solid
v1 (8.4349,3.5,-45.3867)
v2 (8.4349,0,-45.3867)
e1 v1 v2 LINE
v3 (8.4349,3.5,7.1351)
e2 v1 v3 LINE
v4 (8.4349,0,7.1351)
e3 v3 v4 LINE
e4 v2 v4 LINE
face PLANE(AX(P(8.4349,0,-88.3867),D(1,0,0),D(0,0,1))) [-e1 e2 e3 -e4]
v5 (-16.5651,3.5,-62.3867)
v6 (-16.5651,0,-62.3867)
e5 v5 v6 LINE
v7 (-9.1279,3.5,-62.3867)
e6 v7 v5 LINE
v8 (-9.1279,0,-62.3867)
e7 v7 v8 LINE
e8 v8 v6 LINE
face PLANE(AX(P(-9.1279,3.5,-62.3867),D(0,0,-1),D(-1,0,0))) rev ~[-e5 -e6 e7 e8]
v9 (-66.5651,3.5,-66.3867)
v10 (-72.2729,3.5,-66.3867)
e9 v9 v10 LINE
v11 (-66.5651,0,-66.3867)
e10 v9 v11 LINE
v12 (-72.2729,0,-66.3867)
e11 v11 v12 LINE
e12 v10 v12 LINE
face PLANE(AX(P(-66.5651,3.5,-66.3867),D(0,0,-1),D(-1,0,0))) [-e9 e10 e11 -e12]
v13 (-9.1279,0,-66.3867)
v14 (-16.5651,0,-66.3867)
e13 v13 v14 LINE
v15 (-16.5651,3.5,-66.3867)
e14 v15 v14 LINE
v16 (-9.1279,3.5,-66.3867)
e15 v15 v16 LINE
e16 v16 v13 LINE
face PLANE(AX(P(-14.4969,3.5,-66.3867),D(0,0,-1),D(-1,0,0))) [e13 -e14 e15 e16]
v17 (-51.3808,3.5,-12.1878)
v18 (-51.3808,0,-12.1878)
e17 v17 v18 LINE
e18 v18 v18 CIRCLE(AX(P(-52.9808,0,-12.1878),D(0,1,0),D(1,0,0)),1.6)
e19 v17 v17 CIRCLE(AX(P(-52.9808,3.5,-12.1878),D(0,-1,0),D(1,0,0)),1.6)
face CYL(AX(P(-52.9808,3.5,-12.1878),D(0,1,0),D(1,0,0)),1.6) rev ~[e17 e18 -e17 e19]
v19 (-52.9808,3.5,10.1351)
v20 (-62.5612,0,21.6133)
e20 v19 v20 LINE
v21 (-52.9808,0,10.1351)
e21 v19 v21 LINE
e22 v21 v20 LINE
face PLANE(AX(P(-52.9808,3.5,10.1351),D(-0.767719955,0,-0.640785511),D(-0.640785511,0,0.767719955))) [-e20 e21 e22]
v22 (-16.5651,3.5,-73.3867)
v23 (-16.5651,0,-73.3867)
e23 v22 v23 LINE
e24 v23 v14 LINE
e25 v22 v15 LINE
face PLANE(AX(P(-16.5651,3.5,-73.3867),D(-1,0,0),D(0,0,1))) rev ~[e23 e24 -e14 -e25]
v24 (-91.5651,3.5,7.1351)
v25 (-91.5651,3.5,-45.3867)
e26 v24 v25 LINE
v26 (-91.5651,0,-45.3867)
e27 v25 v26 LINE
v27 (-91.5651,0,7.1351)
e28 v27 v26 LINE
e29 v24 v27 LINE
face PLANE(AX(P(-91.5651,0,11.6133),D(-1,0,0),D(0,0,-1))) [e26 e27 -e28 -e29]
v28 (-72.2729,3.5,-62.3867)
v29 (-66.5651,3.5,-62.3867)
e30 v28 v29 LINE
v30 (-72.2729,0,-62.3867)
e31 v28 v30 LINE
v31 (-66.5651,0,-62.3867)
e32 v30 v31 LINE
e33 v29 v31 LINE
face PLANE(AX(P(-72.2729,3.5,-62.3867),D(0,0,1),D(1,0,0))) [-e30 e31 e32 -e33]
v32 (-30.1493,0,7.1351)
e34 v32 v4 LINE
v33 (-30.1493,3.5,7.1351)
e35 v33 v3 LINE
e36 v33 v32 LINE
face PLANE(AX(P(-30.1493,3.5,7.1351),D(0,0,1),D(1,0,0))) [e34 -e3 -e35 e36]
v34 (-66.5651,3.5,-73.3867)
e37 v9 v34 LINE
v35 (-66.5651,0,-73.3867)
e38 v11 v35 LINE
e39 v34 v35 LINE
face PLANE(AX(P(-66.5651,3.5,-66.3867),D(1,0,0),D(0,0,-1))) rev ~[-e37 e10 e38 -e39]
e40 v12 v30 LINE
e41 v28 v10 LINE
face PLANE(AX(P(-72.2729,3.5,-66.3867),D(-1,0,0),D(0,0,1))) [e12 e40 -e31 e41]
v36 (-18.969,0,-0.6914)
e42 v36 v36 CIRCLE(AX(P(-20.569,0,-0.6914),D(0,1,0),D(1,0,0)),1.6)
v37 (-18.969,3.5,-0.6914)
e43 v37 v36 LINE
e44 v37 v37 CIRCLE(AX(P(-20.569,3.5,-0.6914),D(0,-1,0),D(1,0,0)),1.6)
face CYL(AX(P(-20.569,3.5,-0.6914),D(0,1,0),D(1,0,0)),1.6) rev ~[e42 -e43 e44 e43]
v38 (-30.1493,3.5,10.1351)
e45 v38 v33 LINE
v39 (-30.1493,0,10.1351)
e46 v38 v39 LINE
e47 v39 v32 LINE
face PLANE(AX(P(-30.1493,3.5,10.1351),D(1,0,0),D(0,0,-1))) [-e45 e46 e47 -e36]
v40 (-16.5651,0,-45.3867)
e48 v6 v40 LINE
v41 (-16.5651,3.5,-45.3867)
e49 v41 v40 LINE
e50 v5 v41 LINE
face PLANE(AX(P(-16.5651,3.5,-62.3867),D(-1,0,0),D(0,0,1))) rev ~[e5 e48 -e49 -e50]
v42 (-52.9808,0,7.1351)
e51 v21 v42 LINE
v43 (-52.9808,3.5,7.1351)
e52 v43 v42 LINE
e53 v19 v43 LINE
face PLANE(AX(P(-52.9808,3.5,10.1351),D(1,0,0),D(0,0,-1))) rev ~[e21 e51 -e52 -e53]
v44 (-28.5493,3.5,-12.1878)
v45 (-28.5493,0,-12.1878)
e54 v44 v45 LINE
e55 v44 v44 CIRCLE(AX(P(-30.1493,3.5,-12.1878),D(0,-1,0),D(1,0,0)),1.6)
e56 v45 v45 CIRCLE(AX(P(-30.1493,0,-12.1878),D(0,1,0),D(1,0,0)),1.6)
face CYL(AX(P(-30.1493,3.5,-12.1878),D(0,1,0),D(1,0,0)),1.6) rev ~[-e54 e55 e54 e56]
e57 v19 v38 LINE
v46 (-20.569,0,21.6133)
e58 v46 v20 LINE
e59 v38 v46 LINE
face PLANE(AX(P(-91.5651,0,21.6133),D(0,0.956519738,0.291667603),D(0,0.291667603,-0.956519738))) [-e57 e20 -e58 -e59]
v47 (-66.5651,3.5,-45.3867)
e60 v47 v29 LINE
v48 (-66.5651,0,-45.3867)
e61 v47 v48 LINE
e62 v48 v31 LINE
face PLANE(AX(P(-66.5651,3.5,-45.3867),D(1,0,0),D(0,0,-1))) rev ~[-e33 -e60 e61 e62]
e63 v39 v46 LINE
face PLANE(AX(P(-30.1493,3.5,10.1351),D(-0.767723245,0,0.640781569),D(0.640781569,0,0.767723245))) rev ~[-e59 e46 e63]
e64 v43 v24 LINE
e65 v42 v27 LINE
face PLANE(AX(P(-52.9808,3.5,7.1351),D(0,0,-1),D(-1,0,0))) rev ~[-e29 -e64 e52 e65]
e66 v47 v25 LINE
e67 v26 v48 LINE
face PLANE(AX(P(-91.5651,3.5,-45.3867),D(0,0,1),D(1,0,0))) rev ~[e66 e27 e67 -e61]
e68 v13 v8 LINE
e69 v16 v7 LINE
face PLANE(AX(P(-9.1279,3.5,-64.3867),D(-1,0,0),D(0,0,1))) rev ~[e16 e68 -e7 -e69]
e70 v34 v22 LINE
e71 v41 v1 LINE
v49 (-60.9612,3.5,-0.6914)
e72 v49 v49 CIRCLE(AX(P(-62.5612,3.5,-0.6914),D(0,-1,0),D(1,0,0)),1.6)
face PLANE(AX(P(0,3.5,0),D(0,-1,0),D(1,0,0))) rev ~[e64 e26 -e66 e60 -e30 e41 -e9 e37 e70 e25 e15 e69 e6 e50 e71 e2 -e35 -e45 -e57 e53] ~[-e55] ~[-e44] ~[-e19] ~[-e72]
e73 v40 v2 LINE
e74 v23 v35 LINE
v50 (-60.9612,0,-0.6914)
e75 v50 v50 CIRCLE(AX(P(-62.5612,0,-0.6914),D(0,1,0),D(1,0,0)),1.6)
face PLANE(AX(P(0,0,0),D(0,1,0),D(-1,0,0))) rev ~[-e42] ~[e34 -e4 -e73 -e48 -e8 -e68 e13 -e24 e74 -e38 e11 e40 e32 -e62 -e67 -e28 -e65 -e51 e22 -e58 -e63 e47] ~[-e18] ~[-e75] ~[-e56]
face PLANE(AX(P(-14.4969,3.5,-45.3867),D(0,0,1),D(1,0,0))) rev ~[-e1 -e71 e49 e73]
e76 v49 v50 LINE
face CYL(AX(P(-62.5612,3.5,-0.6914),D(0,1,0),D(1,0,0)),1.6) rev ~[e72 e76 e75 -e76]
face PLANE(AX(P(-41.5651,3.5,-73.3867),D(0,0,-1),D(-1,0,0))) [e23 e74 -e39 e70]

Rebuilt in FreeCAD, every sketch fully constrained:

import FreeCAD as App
import Part
import Sketcher
Q = App.Units.Quantity


def add_polygon(sketch, points):
    """Adds a closed chain of lines whose ends are joined by coincident constraints."""
    first, n = sketch.GeometryCount, len(points)
    for a, b in zip(points, points[1:] + points[:1]):
        sketch.addGeometry(Part.LineSegment(App.Vector(*a, 0), App.Vector(*b, 0)), False)
    for i in range(n):
        sketch.addConstraint(Sketcher.Constraint("Coincident", first + i, 2, first + (i + 1) % n, 1))

doc = App.newDocument("Part")
body = doc.addObject("PartDesign::Body", "Body")

# Sketch on XZ plane
sketch1 = body.newObject("Sketcher::SketchObject", "Sketch")
sketch1.AttachmentSupport = (doc.getObject("XZ_Plane"), [""])
sketch1.MapMode = "FlatFace"
add_polygon(sketch1, [(-92, 12), (8, 12), (8, -88), (-92, -88)])  # lines 0-3
sketch1.addConstraint([
    Sketcher.Constraint("Horizontal", 0),
    Sketcher.Constraint("Vertical", 1),
    Sketcher.Constraint("Horizontal", 2),
    Sketcher.Constraint("Vertical", 3),
    Sketcher.Constraint("Equal", 2, 1),
    Sketcher.Constraint("DistanceX", 0, 1, 0, 2, 100.0),
    Sketcher.Constraint("DistanceX", -1, 1, 0, 2, 8.435),
    Sketcher.Constraint("DistanceY", -1, 1, 0, 2, 11.6133),
])
pad1 = body.newObject("PartDesign::Pad", "Pad")
pad1.Profile = sketch1
pad1.Length = 3.5
pad1.Reversed = True

# Sketch on YZ plane
sketch2 = body.newObject("Sketcher::SketchObject", "Sketch001")
sketch2.AttachmentSupport = (doc.getObject("YZ_Plane"), [""])
sketch2.MapMode = "FlatFace"
sketch2.AttachmentOffset = App.Placement(App.Vector(0, 0, -91.5651), App.Rotation())
add_polygon(sketch2, [(3.5, 1.6), (0, 11.6), (3.5, 11.6)])  # lines 0-2
sketch2.addConstraint([
    Sketcher.Constraint("Horizontal", 1),
    Sketcher.Constraint("Vertical", 2),
    Sketcher.Constraint("PointOnObject", 0, 2, -2),
    Sketcher.Constraint("DistanceY", 2, 2, 2, 1, 10.0),
    Sketcher.Constraint("DistanceX", 1, 1, 1, 2, 3.5),
    Sketcher.Constraint("DistanceY", -1, 1, 0, 2, 11.6133),
])
pocket1 = body.newObject("PartDesign::Pocket", "Pocket")
pocket1.Profile = sketch2
pocket1.Type = "ThroughAll"
pocket1.Reversed = True

# Sketch on XZ plane
sketch3 = body.newObject("Sketcher::SketchObject", "Sketch002")
sketch3.AttachmentSupport = (doc.getObject("XZ_Plane"), [""])
sketch3.MapMode = "FlatFace"
sketch3.AttachmentOffset = App.Placement(App.Vector(0, 0, -3.5), App.Rotation())
sketch3.addGeometry([
    Part.Circle(App.Vector(-20.6, -0.7, 0), App.Vector(0, 0, 1), 1.6),
    Part.Circle(App.Vector(-62.6, -0.7, 0), App.Vector(0, 0, 1), 1.6),
    Part.Circle(App.Vector(-53, -12.2, 0), App.Vector(0, 0, 1), 1.6),
    Part.Circle(App.Vector(-30.1, -12.2, 0), App.Vector(0, 0, 1), 1.6),
], False)
sketch3.addConstraint([
    Sketcher.Constraint("Equal", 0, 1),
    Sketcher.Constraint("Equal", 1, 2),
    Sketcher.Constraint("Equal", 2, 3),
    Sketcher.Constraint("Horizontal", 0, 3, 1, 3),
    Sketcher.Constraint("Horizontal", 2, 3, 3, 3),
    Sketcher.Constraint("Diameter", 0, 3.2),
    Sketcher.Constraint("DistanceX", 0, 3, -1, 1, 20.569),
    Sketcher.Constraint("DistanceX", 1, 3, 3, 3, 32.412),
    Sketcher.Constraint("DistanceY", 0, 3, -1, 1, 0.6914),
    Sketcher.Constraint("DistanceX", 1, 3, -1, 1, 62.5612),
    Sketcher.Constraint("DistanceX", 2, 3, -1, 1, 52.9808),
    Sketcher.Constraint("DistanceY", 2, 3, -1, 1, 12.1878),
])
pocket2 = body.newObject("PartDesign::Pocket", "Pocket001")
pocket2.Profile = sketch3
pocket2.Type = "ThroughAll"
pocket2.Reversed = True

# Sketch on XZ plane
sketch4 = body.newObject("Sketcher::SketchObject", "Sketch003")
sketch4.AttachmentSupport = (doc.getObject("XZ_Plane"), [""])
sketch4.MapMode = "FlatFace"
add_polygon(sketch4, [(-92, 2), (8, 2), (8, 22), (-92, 22)])  # lines 0-3
sketch4.addConstraint([
    Sketcher.Constraint("Horizontal", 0),
    Sketcher.Constraint("Vertical", 1),
    Sketcher.Constraint("Horizontal", 2),
    Sketcher.Constraint("Vertical", 3),
    Sketcher.Constraint("DistanceX", 0, 1, 0, 2, 100.0),
    Sketcher.Constraint("DistanceY", 1, 1, 1, 2, 20.0),
    Sketcher.Constraint("DistanceX", -1, 1, 0, 2, 8.435),
    Sketcher.Constraint("DistanceY", -1, 1, 0, 2, 1.6133),
])
pad2 = body.newObject("PartDesign::Pad", "Pad001")
pad2.Profile = sketch4
pad2.Length = 3.5
pad2.Reversed = True

# Sketch on XZ plane
sketch5 = body.newObject("Sketcher::SketchObject", "Sketch004")
sketch5.AttachmentSupport = (doc.getObject("XZ_Plane"), [""])
sketch5.MapMode = "FlatFace"
add_polygon(sketch5, [(-92, -78), (-92, -88), (8, -88), (8, -78)])  # lines 0-3
sketch5.addConstraint([
    Sketcher.Constraint("Vertical", 0),
    Sketcher.Constraint("Horizontal", 1),
    Sketcher.Constraint("Vertical", 2),
    Sketcher.Constraint("Horizontal", 3),
    Sketcher.Constraint("DistanceY", 0, 2, 0, 1, 10.0),
    Sketcher.Constraint("DistanceX", 1, 1, 1, 2, 100.0),
    Sketcher.Constraint("DistanceX", 0, 2, -1, 1, 91.565),
    Sketcher.Constraint("DistanceY", 0, 2, -1, 1, 88.3867),
])
pocket3 = body.newObject("PartDesign::Pocket", "Pocket002")
pocket3.Profile = sketch5
pocket3.Type = "ThroughAll"

# Sketch on YZ plane
sketch6 = body.newObject("Sketcher::SketchObject", "Sketch005")
sketch6.AttachmentSupport = (doc.getObject("YZ_Plane"), [""])
sketch6.MapMode = "FlatFace"
sketch6.AttachmentOffset = App.Placement(App.Vector(0, 0, -91.5651), App.Rotation())
add_polygon(sketch6, [(3.5, 10.1), (0, 21.6), (3.5, 21.6)])  # lines 0-2
sketch6.addConstraint([
    Sketcher.Constraint("Horizontal", 1),
    Sketcher.Constraint("Vertical", 2),
    Sketcher.Constraint("PointOnObject", 0, 2, -2),
    Sketcher.Constraint("Distance", 0, 12.0),
    Sketcher.Constraint("DistanceX", 1, 1, 1, 2, 3.5),
    Sketcher.Constraint("DistanceY", -1, 1, 2, 2, 10.135),
])
pocket4 = body.newObject("PartDesign::Pocket", "Pocket003")
pocket4.Profile = sketch6
pocket4.Type = "ThroughAll"
pocket4.Reversed = True

# Sketch on XZ plane
sketch7 = body.newObject("Sketcher::SketchObject", "Sketch006")
sketch7.AttachmentSupport = (doc.getObject("XZ_Plane"), [""])
sketch7.MapMode = "FlatFace"
sketch7.AttachmentOffset = App.Placement(App.Vector(0, 0, -3.5), App.Rotation())
add_polygon(sketch7, [(-53, 10), (-92, 10), (-92, 22), (-63, 22)])  # lines 0-3
add_polygon(sketch7, [(8, 10), (-30, 10), (-21, 22), (8, 22)])  # lines 4-7
sketch7.addConstraint([
    Sketcher.Constraint("Horizontal", 0),
    Sketcher.Constraint("Vertical", 1),
    Sketcher.Constraint("Horizontal", 2),
    Sketcher.Constraint("Horizontal", 4),
    Sketcher.Constraint("Horizontal", 6),
    Sketcher.Constraint("Vertical", 7),
    Sketcher.Constraint("Horizontal", 3, 2, 4, 2),
    Sketcher.Constraint("Horizontal", 2, 2, 5, 2),
    Sketcher.Constraint("Equal", 0, 4),
    Sketcher.Constraint("Equal", 2, 6),
    Sketcher.Constraint("DistanceX", 1, 2, 6, 2, 100.0),
    Sketcher.Constraint("Angle", 3, Q("-50.1496 deg")),
    Sketcher.Constraint("DistanceX", 2, 1, 2, 2, 29.004),
    Sketcher.Constraint("Distance", 3, 14.951),
    Sketcher.Constraint("DistanceX", 0, 2, -1, 1, 91.565),
    Sketcher.Constraint("DistanceY", -1, 1, 0, 2, 10.135),
])
pocket5 = body.newObject("PartDesign::Pocket", "Pocket004")
pocket5.Profile = sketch7
pocket5.Length = 10
pocket5.Reversed = True

# Sketch on XZ plane
sketch8 = body.newObject("Sketcher::SketchObject", "Sketch007")
sketch8.AttachmentSupport = (doc.getObject("XZ_Plane"), [""])
sketch8.MapMode = "FlatFace"
sketch8.AttachmentOffset = App.Placement(App.Vector(0, 0, -3.5), App.Rotation())
add_polygon(sketch8, [(-91.6, 7.1), (-91.6, 10.1), (-53, 10.1), (-53, 7.1)])  # lines 0-3
add_polygon(sketch8, [(-30.1, 7.1), (-30.1, 10.1), (8.4, 10.1), (8.4, 7.1)])  # lines 4-7
sketch8.addConstraint([
    Sketcher.Constraint("Vertical", 0),
    Sketcher.Constraint("Horizontal", 1),
    Sketcher.Constraint("Vertical", 2),
    Sketcher.Constraint("Horizontal", 3),
    Sketcher.Constraint("Vertical", 4),
    Sketcher.Constraint("Horizontal", 5),
    Sketcher.Constraint("Vertical", 6),
    Sketcher.Constraint("Horizontal", 7),
    Sketcher.Constraint("Horizontal", 1, 2, 4, 2),
    Sketcher.Constraint("Horizontal", 3, 2, 6, 2),
    Sketcher.Constraint("Equal", 3, 5),
    Sketcher.Constraint("DistanceY", 0, 1, 0, 2, 3.0),
    Sketcher.Constraint("DistanceX", 0, 2, 5, 2, 100.0),
    Sketcher.Constraint("DistanceX", 1, 1, 1, 2, 38.5843),
    Sketcher.Constraint("DistanceX", 0, 2, -1, 1, 91.565),
    Sketcher.Constraint("DistanceY", -1, 1, 0, 2, 10.135),
])
pocket6 = body.newObject("PartDesign::Pocket", "Pocket005")
pocket6.Profile = sketch8
pocket6.Type = "ThroughAll"
pocket6.Reversed = True

# Sketch on XZ plane
sketch9 = body.newObject("Sketcher::SketchObject", "Sketch008")
sketch9.AttachmentSupport = (doc.getObject("XZ_Plane"), [""])
sketch9.MapMode = "FlatFace"
sketch9.AttachmentOffset = App.Placement(App.Vector(0, 0, -3.5), App.Rotation())
add_polygon(sketch9, [(-91.6, -45.4), (-66.6, -45.4), (-66.6, -62.4), (-72.3, -62.4), (-72.3, -66.4), (-66.6, -66.4), (-66.6, -73.4), (-16.6, -73.4), (-16.6, -66.4), (-9.1, -66.4), (-9.1, -62.4), (-16.6, -62.4), (-16.6, -45.4), (8.4, -45.4), (8.4, -78.4), (-91.6, -78.4)])  # lines 0-15
sketch9.addConstraint([
    Sketcher.Constraint("Horizontal", 0),
    Sketcher.Constraint("Vertical", 1),
    Sketcher.Constraint("Horizontal", 2),
    Sketcher.Constraint("Vertical", 3),
    Sketcher.Constraint("Horizontal", 4),
    Sketcher.Constraint("Vertical", 5),
    Sketcher.Constraint("Horizontal", 6),
    Sketcher.Constraint("Vertical", 7),
    Sketcher.Constraint("Horizontal", 8),
    Sketcher.Constraint("Vertical", 9),
    Sketcher.Constraint("Horizontal", 10),
    Sketcher.Constraint("Vertical", 11),
    Sketcher.Constraint("Horizontal", 12),
    Sketcher.Constraint("Vertical", 13),
    Sketcher.Constraint("Horizontal", 14),
    Sketcher.Constraint("Vertical", 15),
    Sketcher.Constraint("Horizontal", 4, 2, 7, 2),
    Sketcher.Constraint("Horizontal", 2, 2, 9, 2),
    Sketcher.Constraint("Horizontal", 0, 2, 11, 2),
    Sketcher.Constraint("Vertical", 1, 2, 4, 2),
    Sketcher.Constraint("Vertical", 7, 2, 10, 2),
    Sketcher.Constraint("Equal", 0, 12),
    Sketcher.Constraint("DistanceX", 0, 1, 0, 2, 25.0),
    Sketcher.Constraint("DistanceX", 6, 1, 6, 2, 50.0),
    Sketcher.Constraint("DistanceY", 5, 2, 0, 2, 28.0),
    Sketcher.Constraint("DistanceY", 13, 2, 6, 2, 5.0),
    Sketcher.Constraint("DistanceY", 1, 2, 1, 1, 17.0),
    Sketcher.Constraint("DistanceY", 3, 2, 3, 1, 4.0),
    Sketcher.Constraint("DistanceX", 2, 2, 2, 1, 5.7078),
    Sketcher.Constraint("DistanceX", 8, 1, 8, 2, 7.4372),
    Sketcher.Constraint("DistanceX", 0, 2, -1, 1, 66.565),
    Sketcher.Constraint("DistanceY", 0, 2, -1, 1, 45.3867),
])
pocket7 = body.newObject("PartDesign::Pocket", "Pocket006")
pocket7.Profile = sketch9
pocket7.Type = "ThroughAll"
pocket7.Reversed = True

doc.recompute()
